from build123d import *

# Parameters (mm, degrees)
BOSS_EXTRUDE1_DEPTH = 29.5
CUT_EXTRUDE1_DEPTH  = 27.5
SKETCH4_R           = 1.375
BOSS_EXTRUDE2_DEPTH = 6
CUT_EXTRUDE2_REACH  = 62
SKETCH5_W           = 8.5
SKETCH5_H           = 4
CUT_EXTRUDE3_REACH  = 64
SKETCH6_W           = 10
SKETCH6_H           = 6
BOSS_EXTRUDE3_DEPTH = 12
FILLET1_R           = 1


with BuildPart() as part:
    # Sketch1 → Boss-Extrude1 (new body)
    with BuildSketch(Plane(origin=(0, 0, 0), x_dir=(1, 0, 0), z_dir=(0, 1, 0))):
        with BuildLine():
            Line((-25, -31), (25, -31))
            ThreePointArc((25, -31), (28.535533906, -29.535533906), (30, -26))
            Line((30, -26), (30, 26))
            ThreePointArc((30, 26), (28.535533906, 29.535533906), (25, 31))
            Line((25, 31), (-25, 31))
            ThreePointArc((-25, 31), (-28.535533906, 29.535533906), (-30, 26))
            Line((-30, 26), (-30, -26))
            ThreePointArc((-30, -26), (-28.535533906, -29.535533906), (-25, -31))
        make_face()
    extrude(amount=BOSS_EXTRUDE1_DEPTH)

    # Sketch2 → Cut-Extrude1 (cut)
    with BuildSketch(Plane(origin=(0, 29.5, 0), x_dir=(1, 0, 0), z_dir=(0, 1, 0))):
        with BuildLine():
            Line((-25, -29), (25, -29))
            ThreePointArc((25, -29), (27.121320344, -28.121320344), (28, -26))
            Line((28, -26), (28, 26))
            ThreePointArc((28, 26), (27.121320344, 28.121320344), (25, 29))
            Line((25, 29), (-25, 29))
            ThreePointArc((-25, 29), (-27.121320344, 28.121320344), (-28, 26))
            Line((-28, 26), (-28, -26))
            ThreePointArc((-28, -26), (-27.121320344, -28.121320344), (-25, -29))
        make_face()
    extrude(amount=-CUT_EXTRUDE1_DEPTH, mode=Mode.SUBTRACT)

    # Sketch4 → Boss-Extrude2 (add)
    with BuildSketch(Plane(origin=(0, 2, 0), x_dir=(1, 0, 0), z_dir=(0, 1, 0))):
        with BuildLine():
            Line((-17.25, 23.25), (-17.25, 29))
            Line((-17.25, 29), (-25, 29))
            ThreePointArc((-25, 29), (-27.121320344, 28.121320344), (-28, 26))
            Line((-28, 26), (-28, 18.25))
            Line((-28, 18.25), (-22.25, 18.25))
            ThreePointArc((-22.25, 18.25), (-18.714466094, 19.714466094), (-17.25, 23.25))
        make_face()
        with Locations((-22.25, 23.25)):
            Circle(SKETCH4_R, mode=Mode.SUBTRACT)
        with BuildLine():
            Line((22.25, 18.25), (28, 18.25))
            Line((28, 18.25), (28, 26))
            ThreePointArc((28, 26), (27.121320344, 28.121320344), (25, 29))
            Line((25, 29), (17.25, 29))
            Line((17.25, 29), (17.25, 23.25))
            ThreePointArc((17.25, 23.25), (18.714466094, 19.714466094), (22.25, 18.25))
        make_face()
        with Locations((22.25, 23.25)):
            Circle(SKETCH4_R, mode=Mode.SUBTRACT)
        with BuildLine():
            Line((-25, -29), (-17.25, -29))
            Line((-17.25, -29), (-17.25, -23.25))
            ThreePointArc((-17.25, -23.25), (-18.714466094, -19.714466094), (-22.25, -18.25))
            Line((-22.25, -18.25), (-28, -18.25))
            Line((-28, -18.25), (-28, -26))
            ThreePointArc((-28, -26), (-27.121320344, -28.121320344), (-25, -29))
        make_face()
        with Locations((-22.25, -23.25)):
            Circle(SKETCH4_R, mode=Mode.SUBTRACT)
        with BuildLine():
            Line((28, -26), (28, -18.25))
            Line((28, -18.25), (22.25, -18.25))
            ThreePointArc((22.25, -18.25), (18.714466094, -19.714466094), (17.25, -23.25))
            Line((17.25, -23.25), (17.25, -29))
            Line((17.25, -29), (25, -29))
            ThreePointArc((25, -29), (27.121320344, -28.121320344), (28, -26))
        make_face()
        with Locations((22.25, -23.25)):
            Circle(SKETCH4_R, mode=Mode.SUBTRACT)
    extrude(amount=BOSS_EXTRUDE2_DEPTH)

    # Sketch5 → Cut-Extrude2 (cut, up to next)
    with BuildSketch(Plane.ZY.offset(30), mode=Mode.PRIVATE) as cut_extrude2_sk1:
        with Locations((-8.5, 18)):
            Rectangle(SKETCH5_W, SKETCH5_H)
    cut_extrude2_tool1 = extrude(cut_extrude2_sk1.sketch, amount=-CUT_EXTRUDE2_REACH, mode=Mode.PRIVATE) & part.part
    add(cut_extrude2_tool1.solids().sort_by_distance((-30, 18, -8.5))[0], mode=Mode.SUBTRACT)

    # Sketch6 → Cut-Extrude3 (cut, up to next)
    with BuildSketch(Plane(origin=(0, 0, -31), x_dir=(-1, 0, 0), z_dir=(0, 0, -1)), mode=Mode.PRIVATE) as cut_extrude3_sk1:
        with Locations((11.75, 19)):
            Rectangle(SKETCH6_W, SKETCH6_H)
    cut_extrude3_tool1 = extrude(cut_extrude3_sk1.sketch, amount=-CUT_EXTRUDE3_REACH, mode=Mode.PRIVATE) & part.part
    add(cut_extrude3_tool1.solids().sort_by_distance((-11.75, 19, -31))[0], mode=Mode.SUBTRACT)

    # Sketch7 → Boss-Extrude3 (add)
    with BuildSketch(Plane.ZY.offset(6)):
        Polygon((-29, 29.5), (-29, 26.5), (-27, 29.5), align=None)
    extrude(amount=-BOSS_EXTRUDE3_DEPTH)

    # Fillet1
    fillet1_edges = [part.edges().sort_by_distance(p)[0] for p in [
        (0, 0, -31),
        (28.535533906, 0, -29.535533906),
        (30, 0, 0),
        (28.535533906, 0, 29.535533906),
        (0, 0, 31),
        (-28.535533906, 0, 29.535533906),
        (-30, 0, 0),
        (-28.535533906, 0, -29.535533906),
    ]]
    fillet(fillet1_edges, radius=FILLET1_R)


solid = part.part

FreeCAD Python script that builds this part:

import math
import FreeCAD as App
import Part
import Sketcher
from FreeCAD import Vector
Q = App.Units.Quantity


def edges_at(feature, points):
    """Names of the edges that pass closest to the given points."""
    edges = feature.Shape.Edges
    near = lambda p: min(range(len(edges)), key=lambda i: edges[i].distToShape(Part.Vertex(*p))[0])
    return sorted({f"Edge{near(p) + 1}" for p in points})


def add_polygon(sketch, points):
    """Adds a closed chain of lines whose ends are joined by coincident constraints."""
    first, n = sketch.GeometryCount, len(points)
    for a, b in zip(points, points[1:] + points[:1]):
        sketch.addGeometry(Part.LineSegment(App.Vector(*a, 0), App.Vector(*b, 0)), False)
    for i in range(n):
        sketch.addConstraint(Sketcher.Constraint("Coincident", first + i, 2, first + (i + 1) % n, 1))

doc = App.newDocument("Part")
body = doc.addObject("PartDesign::Body", "Body")

sketch1 = doc.addObject("Sketcher::SketchObject", "Sketch")
body.addObject(sketch1)
sketch1.AttachmentSupport = (doc.XZ_Plane, [""])
sketch1.MapMode = "FlatFace"
sketch1.addGeometry(Part.LineSegment(Vector(-25, 31, 0), Vector(25, 31, 0)), False)
sketch1.addGeometry(Part.ArcOfCircle(Part.Circle(Vector(25, 26, 0), Vector(0, 0, 1), 5), math.radians(0), math.radians(90)), False)
sketch1.addGeometry(Part.LineSegment(Vector(30, 26, 0), Vector(30, -26, 0)), False)
sketch1.addGeometry(Part.ArcOfCircle(Part.Circle(Vector(25, -26, 0), Vector(0, 0, 1), 5), math.radians(-90), math.radians(0)), False)
sketch1.addGeometry(Part.LineSegment(Vector(25, -31, 0), Vector(-25, -31, 0)), False)
sketch1.addGeometry(Part.ArcOfCircle(Part.Circle(Vector(-25, -26, 0), Vector(0, 0, 1), 5), math.radians(180), math.radians(270)), False)
sketch1.addGeometry(Part.LineSegment(Vector(-30, -26, 0), Vector(-30, 26, 0)), False)
sketch1.addGeometry(Part.ArcOfCircle(Part.Circle(Vector(-25, 26, 0), Vector(0, 0, 1), 5), math.radians(90), math.radians(180)), False)
sketch1.addConstraint(Sketcher.Constraint("Tangent", 0, 2, 1, 2))
sketch1.addConstraint(Sketcher.Constraint("Tangent", 1, 1, 2, 1))
sketch1.addConstraint(Sketcher.Constraint("Tangent", 2, 2, 3, 2))
sketch1.addConstraint(Sketcher.Constraint("Tangent", 3, 1, 4, 1))
sketch1.addConstraint(Sketcher.Constraint("Tangent", 4, 2, 5, 2))
sketch1.addConstraint(Sketcher.Constraint("Tangent", 5, 1, 6, 1))
sketch1.addConstraint(Sketcher.Constraint("Tangent", 6, 2, 7, 2))
sketch1.addConstraint(Sketcher.Constraint("Tangent", 7, 1, 0, 1))
sketch1.addConstraint(Sketcher.Constraint("Horizontal", 0))
sketch1.addConstraint(Sketcher.Constraint("Vertical", 2))
sketch1.addConstraint(Sketcher.Constraint("Horizontal", 4))
sketch1.addConstraint(Sketcher.Constraint("Vertical", 6))
sketch1.addConstraint(Sketcher.Constraint("Equal", 1, 3))
sketch1.addConstraint(Sketcher.Constraint("Equal", 3, 5))
sketch1.addConstraint(Sketcher.Constraint("Equal", 5, 7))
sketch1.addConstraint(Sketcher.Constraint("Symmetric", 1, 3, 5, 3, -1, 1))
sketch1.addConstraint(Sketcher.Constraint("Radius", 1, Q("5 mm")))
sketch1.addConstraint(Sketcher.Constraint("DistanceX", 0, 1, 0, 2, Q("50 mm")))
sketch1.addConstraint(Sketcher.Constraint("DistanceY", 2, 2, 2, 1, Q("52 mm")))
pad1 = doc.addObject("PartDesign::Pad", "Pad")
body.addObject(pad1)
pad1.Profile = sketch1
pad1.Length = 29.5
pad1.Reversed = True

sketch2 = doc.addObject("Sketcher::SketchObject", "Sketch001")
body.addObject(sketch2)
sketch2.AttachmentSupport = (doc.XZ_Plane, [""])
sketch2.MapMode = "FlatFace"
sketch2.AttachmentOffset = App.Placement(Vector(0, 0, -29.5), App.Rotation())
sketch2.addGeometry(Part.LineSegment(Vector(-25, 29, 0), Vector(25, 29, 0)), False)
sketch2.addGeometry(Part.ArcOfCircle(Part.Circle(Vector(25, 26, 0), Vector(0, 0, 1), 3), math.radians(0), math.radians(90)), False)
sketch2.addGeometry(Part.LineSegment(Vector(28, 26, 0), Vector(28, -26, 0)), False)
sketch2.addGeometry(Part.ArcOfCircle(Part.Circle(Vector(25, -26, 0), Vector(0, 0, 1), 3), math.radians(-90), math.radians(0)), False)
sketch2.addGeometry(Part.LineSegment(Vector(25, -29, 0), Vector(-25, -29, 0)), False)
sketch2.addGeometry(Part.ArcOfCircle(Part.Circle(Vector(-25, -26, 0), Vector(0, 0, 1), 3), math.radians(180), math.radians(270)), False)
sketch2.addGeometry(Part.LineSegment(Vector(-28, -26, 0), Vector(-28, 26, 0)), False)
sketch2.addGeometry(Part.ArcOfCircle(Part.Circle(Vector(-25, 26, 0), Vector(0, 0, 1), 3), math.radians(90), math.radians(180)), False)
sketch2.addConstraint(Sketcher.Constraint("Tangent", 0, 2, 1, 2))
sketch2.addConstraint(Sketcher.Constraint("Tangent", 1, 1, 2, 1))
sketch2.addConstraint(Sketcher.Constraint("Tangent", 2, 2, 3, 2))
sketch2.addConstraint(Sketcher.Constraint("Tangent", 3, 1, 4, 1))
sketch2.addConstraint(Sketcher.Constraint("Tangent", 4, 2, 5, 2))
sketch2.addConstraint(Sketcher.Constraint("Tangent", 5, 1, 6, 1))
sketch2.addConstraint(Sketcher.Constraint("Tangent", 6, 2, 7, 2))
sketch2.addConstraint(Sketcher.Constraint("Tangent", 7, 1, 0, 1))
sketch2.addConstraint(Sketcher.Constraint("Horizontal", 0))
sketch2.addConstraint(Sketcher.Constraint("Vertical", 2))
sketch2.addConstraint(Sketcher.Constraint("Horizontal", 4))
sketch2.addConstraint(Sketcher.Constraint("Vertical", 6))
sketch2.addConstraint(Sketcher.Constraint("Equal", 1, 3))
sketch2.addConstraint(Sketcher.Constraint("Equal", 3, 5))
sketch2.addConstraint(Sketcher.Constraint("Equal", 5, 7))
sketch2.addConstraint(Sketcher.Constraint("Symmetric", 1, 3, 5, 3, -1, 1))
sketch2.addConstraint(Sketcher.Constraint("Radius", 1, Q("3 mm")))
sketch2.addConstraint(Sketcher.Constraint("DistanceX", 0, 1, 0, 2, Q("50 mm")))
sketch2.addConstraint(Sketcher.Constraint("DistanceY", 2, 2, 2, 1, Q("52 mm")))
pocket1 = doc.addObject("PartDesign::Pocket", "Pocket")
body.addObject(pocket1)
pocket1.Profile = sketch2
pocket1.Length = 27.5
pocket1.Reversed = True

sketch3 = doc.addObject("Sketcher::SketchObject", "Sketch002")
body.addObject(sketch3)
sketch3.AttachmentSupport = (doc.XZ_Plane, [""])
sketch3.MapMode = "FlatFace"
sketch3.AttachmentOffset = App.Placement(Vector(0, 0, -2), App.Rotation())
sketch3.addGeometry(Part.LineSegment(Vector(-17.2, -23.2, 0), Vector(-17.2, -29, 0)), False)
sketch3.addGeometry(Part.LineSegment(Vector(-17.2, -29, 0), Vector(-25, -29, 0)), False)
sketch3.addGeometry(Part.ArcOfCircle(Part.Circle(Vector(-25, -26, 0), Vector(0, 0, 1), 3), math.radians(180), math.radians(270)), False)
sketch3.addGeometry(Part.LineSegment(Vector(-28, -26, 0), Vector(-28, -18.2, 0)), False)
sketch3.addGeometry(Part.LineSegment(Vector(-28, -18.2, 0), Vector(-22.2, -18.2, 0)), False)
sketch3.addGeometry(Part.ArcOfCircle(Part.Circle(Vector(-22.2, -23.2, 0), Vector(0, 0, 1), 5), math.radians(0), math.radians(90)), False)
sketch3.addGeometry(Part.Circle(Vector(-22.2, -23.2, 0), Vector(0, 0, 1), 1.4), False)
sketch3.addGeometry(Part.LineSegment(Vector(22.2, -18.2, 0), Vector(28, -18.2, 0)), False)
sketch3.addGeometry(Part.LineSegment(Vector(28, -18.2, 0), Vector(28, -26, 0)), False)
sketch3.addGeometry(Part.ArcOfCircle(Part.Circle(Vector(25, -26, 0), Vector(0, 0, 1), 3), math.radians(-90), math.radians(0)), False)
sketch3.addGeometry(Part.LineSegment(Vector(25, -29, 0), Vector(17.2, -29, 0)), False)
sketch3.addGeometry(Part.LineSegment(Vector(17.2, -29, 0), Vector(17.2, -23.2, 0)), False)
sketch3.addGeometry(Part.ArcOfCircle(Part.Circle(Vector(22.2, -23.2, 0), Vector(0, 0, 1), 5), math.radians(90), math.radians(180)), False)
sketch3.addGeometry(Part.Circle(Vector(22.2, -23.2, 0), Vector(0, 0, 1), 1.4), False)
sketch3.addGeometry(Part.LineSegment(Vector(-25, 29, 0), Vector(-17.2, 29, 0)), False)
sketch3.addGeometry(Part.LineSegment(Vector(-17.2, 29, 0), Vector(-17.2, 23.2, 0)), False)
sketch3.addGeometry(Part.ArcOfCircle(Part.Circle(Vector(-22.2, 23.2, 0), Vector(0, 0, 1), 5), math.radians(-90), math.radians(0)), False)
sketch3.addGeometry(Part.LineSegment(Vector(-22.2, 18.2, 0), Vector(-28, 18.2, 0)), False)
sketch3.addGeometry(Part.LineSegment(Vector(-28, 18.2, 0), Vector(-28, 26, 0)), False)
sketch3.addGeometry(Part.ArcOfCircle(Part.Circle(Vector(-25, 26, 0), Vector(0, 0, 1), 3), math.radians(90), math.radians(180)), False)
sketch3.addGeometry(Part.Circle(Vector(-22.2, 23.2, 0), Vector(0, 0, 1), 1.4), False)
sketch3.addGeometry(Part.LineSegment(Vector(28, 26, 0), Vector(28, 18.2, 0)), False)
sketch3.addGeometry(Part.LineSegment(Vector(28, 18.2, 0), Vector(22.2, 18.2, 0)), False)
sketch3.addGeometry(Part.ArcOfCircle(Part.Circle(Vector(22.2, 23.2, 0), Vector(0, 0, 1), 5), math.radians(180), math.radians(270)), False)
sketch3.addGeometry(Part.LineSegment(Vector(17.2, 23.2, 0), Vector(17.2, 29, 0)), False)
sketch3.addGeometry(Part.LineSegment(Vector(17.2, 29, 0), Vector(25, 29, 0)), False)
sketch3.addGeometry(Part.ArcOfCircle(Part.Circle(Vector(25, 26, 0), Vector(0, 0, 1), 3), math.radians(0), math.radians(90)), False)
sketch3.addGeometry(Part.Circle(Vector(22.2, 23.2, 0), Vector(0, 0, 1), 1.4), False)
sketch3.addConstraint(Sketcher.Constraint("Coincident", 0, 2, 1, 1))
sketch3.addConstraint(Sketcher.Constraint("Tangent", 1, 2, 2, 2))
sketch3.addConstraint(Sketcher.Constraint("Tangent", 2, 1, 3, 1))
sketch3.addConstraint(Sketcher.Constraint("Coincident", 3, 2, 4, 1))
sketch3.addConstraint(Sketcher.Constraint("Tangent", 4, 2, 5, 2))
sketch3.addConstraint(Sketcher.Constraint("Tangent", 5, 1, 0, 1))
sketch3.addConstraint(Sketcher.Constraint("Coincident", 7, 2, 8, 1))
sketch3.addConstraint(Sketcher.Constraint("Tangent", 8, 2, 9, 2))
sketch3.addConstraint(Sketcher.Constraint("Tangent", 9, 1, 10, 1))
sketch3.addConstraint(Sketcher.Constraint("Coincident", 10, 2, 11, 1))
sketch3.addConstraint(Sketcher.Constraint("Tangent", 11, 2, 12, 2))
sketch3.addConstraint(Sketcher.Constraint("Tangent", 12, 1, 7, 1))
sketch3.addConstraint(Sketcher.Constraint("Coincident", 14, 2, 15, 1))
sketch3.addConstraint(Sketcher.Constraint("Tangent", 15, 2, 16, 2))
sketch3.addConstraint(Sketcher.Constraint("Tangent", 16, 1, 17, 1))
sketch3.addConstraint(Sketcher.Constraint("Coincident", 17, 2, 18, 1))
sketch3.addConstraint(Sketcher.Constraint("Tangent", 18, 2, 19, 2))
sketch3.addConstraint(Sketcher.Constraint("Tangent", 19, 1, 14, 1))
sketch3.addConstraint(Sketcher.Constraint("Coincident", 21, 2, 22, 1))
sketch3.addConstraint(Sketcher.Constraint("Tangent", 22, 2, 23, 2))
sketch3.addConstraint(Sketcher.Constraint("Tangent", 23, 1, 24, 1))
sketch3.addConstraint(Sketcher.Constraint("Coincident", 24, 2, 25, 1))
sketch3.addConstraint(Sketcher.Constraint("Tangent", 25, 2, 26, 2))
sketch3.addConstraint(Sketcher.Constraint("Tangent", 26, 1, 21, 1))
sketch3.addConstraint(Sketcher.Constraint("Vertical", 0))
sketch3.addConstraint(Sketcher.Constraint("Horizontal", 1))
sketch3.addConstraint(Sketcher.Constraint("Vertical", 3))
sketch3.addConstraint(Sketcher.Constraint("Horizontal", 4))
sketch3.addConstraint(Sketcher.Constraint("Horizontal", 7))
sketch3.addConstraint(Sketcher.Constraint("Vertical", 8))
sketch3.addConstraint(Sketcher.Constraint("Horizontal", 10))
sketch3.addConstraint(Sketcher.Constraint("Vertical", 11))
sketch3.addConstraint(Sketcher.Constraint("Horizontal", 14))
sketch3.addConstraint(Sketcher.Constraint("Vertical", 15))
sketch3.addConstraint(Sketcher.Constraint("Horizontal", 17))
sketch3.addConstraint(Sketcher.Constraint("Vertical", 18))
sketch3.addConstraint(Sketcher.Constraint("Vertical", 21))
sketch3.addConstraint(Sketcher.Constraint("Horizontal", 22))
sketch3.addConstraint(Sketcher.Constraint("Vertical", 24))
sketch3.addConstraint(Sketcher.Constraint("Horizontal", 25))
sketch3.addConstraint(Sketcher.Constraint("Coincident", 6, 3, 5, 3))
sketch3.addConstraint(Sketcher.Constraint("Coincident", 13, 3, 12, 3))
sketch3.addConstraint(Sketcher.Constraint("Coincident", 20, 3, 16, 3))
sketch3.addConstraint(Sketcher.Constraint("Coincident", 27, 3, 23, 3))
sketch3.addConstraint(Sketcher.Constraint("Equal", 2, 9))
sketch3.addConstraint(Sketcher.Constraint("Equal", 5, 12))
sketch3.addConstraint(Sketcher.Constraint("Equal", 6, 13))
sketch3.addConstraint(Sketcher.Constraint("Equal", 12, 16))
sketch3.addConstraint(Sketcher.Constraint("Equal", 9, 19))
sketch3.addConstraint(Sketcher.Constraint("Equal", 13, 20))
sketch3.addConstraint(Sketcher.Constraint("Equal", 16, 23))
sketch3.addConstraint(Sketcher.Constraint("Equal", 19, 26))
sketch3.addConstraint(Sketcher.Constraint("Equal", 20, 27))
sketch3.addConstraint(Sketcher.Constraint("Symmetric", 12, 3, 16, 3, -1, 1))
sketch3.addConstraint(Sketcher.Constraint("Symmetric", 9, 3, 19, 3, -1, 1))
sketch3.addConstraint(Sketcher.Constraint("Symmetric", 5, 3, 23, 3, -1, 1))
sketch3.addConstraint(Sketcher.Constraint("Symmetric", 2, 3, 26, 3, -1, 1))
sketch3.addConstraint(Sketcher.Constraint("Symmetric", 2, 3, 9, 3, -2))
sketch3.addConstraint(Sketcher.Constraint("Symmetric", 5, 3, 12, 3, -2))
sketch3.addConstraint(Sketcher.Constraint("Equal", 22, 0))
sketch3.addConstraint(Sketcher.Constraint("Radius", 2, Q("3 mm")))
sketch3.addConstraint(Sketcher.Constraint("Radius", 5, Q("5 mm")))
sketch3.addConstraint(Sketcher.Constraint("Diameter", 6, Q("2.75 mm")))
sketch3.addConstraint(Sketcher.Constraint("DistanceX", 2, 3, -1, 1, Q("25 mm")))
sketch3.addConstraint(Sketcher.Constraint("DistanceY", 2, 3, -1, 1, Q("26 mm")))
sketch3.addConstraint(Sketcher.Constraint("DistanceX", 1, 2, 1, 1, Q("7.75 mm")))
pad2 = doc.addObject("PartDesign::Pad", "Pad001")
body.addObject(pad2)
pad2.Profile = sketch3
pad2.Length = 6
pad2.Reversed = True

sketch4 = doc.addObject("Sketcher::SketchObject", "Sketch003")
body.addObject(sketch4)
sketch4.AttachmentSupport = (doc.YZ_Plane, [""])
sketch4.MapMode = "FlatFace"
sketch4.AttachmentOffset = App.Placement(Vector(0, 0, -30), App.Rotation())
add_polygon(sketch4, [(20, -12.8), (16, -12.8), (16, -4.2), (20, -4.2)])
sketch4.addConstraint(Sketcher.Constraint("Horizontal", 0))
sketch4.addConstraint(Sketcher.Constraint("Vertical", 1))
sketch4.addConstraint(Sketcher.Constraint("Horizontal", 2))
sketch4.addConstraint(Sketcher.Constraint("Vertical", 3))
sketch4.addConstraint(Sketcher.Constraint("DistanceX", 0, 2, 0, 1, Q("4 mm")))
sketch4.addConstraint(Sketcher.Constraint("DistanceY", 1, 1, 1, 2, Q("8.5 mm")))
sketch4.addConstraint(Sketcher.Constraint("DistanceX", -1, 1, 0, 2, Q("16 mm")))
sketch4.addConstraint(Sketcher.Constraint("DistanceY", 0, 2, -1, 1, Q("12.75 mm")))
pocket2 = doc.addObject("PartDesign::Pocket", "Pocket001")
body.addObject(pocket2)
pocket2.Profile = sketch4
pocket2.Type = "UpToFirst"
pocket2.Reversed = True

sketch5 = doc.addObject("Sketcher::SketchObject", "Sketch004")
body.addObject(sketch5)
sketch5.AttachmentSupport = (doc.XY_Plane, [""])
sketch5.MapMode = "FlatFace"
sketch5.AttachmentOffset = App.Placement(Vector(0, 0, -31), App.Rotation())
add_polygon(sketch5, [(-7, 22), (-7, 16), (-17, 16), (-17, 22)])
sketch5.addConstraint(Sketcher.Constraint("Vertical", 0))
sketch5.addConstraint(Sketcher.Constraint("Horizontal", 1))
sketch5.addConstraint(Sketcher.Constraint("Vertical", 2))
sketch5.addConstraint(Sketcher.Constraint("Horizontal", 3))
sketch5.addConstraint(Sketcher.Constraint("DistanceX", 1, 2, 1, 1, Q("10 mm")))
sketch5.addConstraint(Sketcher.Constraint("DistanceY", 0, 2, 0, 1, Q("6 mm")))
sketch5.addConstraint(Sketcher.Constraint("DistanceY", -1, 1, 0, 2, Q("16 mm")))
sketch5.addConstraint(Sketcher.Constraint("DistanceX", 0, 2, -1, 1, Q("6.75 mm")))
pocket3 = doc.addObject("PartDesign::Pocket", "Pocket002")
body.addObject(pocket3)
pocket3.Profile = sketch5
pocket3.Type = "UpToFirst"
pocket3.Reversed = True

sketch6 = doc.addObject("Sketcher::SketchObject", "Sketch005")
body.addObject(sketch6)
sketch6.AttachmentSupport = (doc.YZ_Plane, [""])
sketch6.MapMode = "FlatFace"
sketch6.AttachmentOffset = App.Placement(Vector(0, 0, -6), App.Rotation())
add_polygon(sketch6, [(29.5, -29), (26.5, -29), (29.5, -27)])
sketch6.addConstraint(Sketcher.Constraint("Horizontal", 0))
sketch6.addConstraint(Sketcher.Constraint("Vertical", 2))
sketch6.addConstraint(Sketcher.Constraint("DistanceX", 0, 2, 0, 1, Q("3 mm")))
sketch6.addConstraint(Sketcher.Constraint("DistanceY", 2, 2, 2, 1, Q("2 mm")))
sketch6.addConstraint(Sketcher.Constraint("DistanceY", 0, 2, -1, 1, Q("29 mm")))
sketch6.addConstraint(Sketcher.Constraint("DistanceX", -1, 1, 0, 2, Q("26.5 mm")))
pad3 = doc.addObject("PartDesign::Pad", "Pad002")
body.addObject(pad3)
pad3.Profile = sketch6
pad3.Length = 12
doc.recompute()

fillet = doc.addObject("PartDesign::Fillet", "Fillet")
body.addObject(fillet)
fillet.Base = (pad3, edges_at(pad3, [
    (0, 0, -31),
    (28.536, 0, -29.536),
    (30, 0, 0),
    (28.536, 0, 29.536),
    (0, 0, 31),
    (-28.536, 0, 29.536),
    (-30, 0, 0),
    (-28.536, 0, -29.536),
]))
fillet.Radius = 1

doc.recompute()
